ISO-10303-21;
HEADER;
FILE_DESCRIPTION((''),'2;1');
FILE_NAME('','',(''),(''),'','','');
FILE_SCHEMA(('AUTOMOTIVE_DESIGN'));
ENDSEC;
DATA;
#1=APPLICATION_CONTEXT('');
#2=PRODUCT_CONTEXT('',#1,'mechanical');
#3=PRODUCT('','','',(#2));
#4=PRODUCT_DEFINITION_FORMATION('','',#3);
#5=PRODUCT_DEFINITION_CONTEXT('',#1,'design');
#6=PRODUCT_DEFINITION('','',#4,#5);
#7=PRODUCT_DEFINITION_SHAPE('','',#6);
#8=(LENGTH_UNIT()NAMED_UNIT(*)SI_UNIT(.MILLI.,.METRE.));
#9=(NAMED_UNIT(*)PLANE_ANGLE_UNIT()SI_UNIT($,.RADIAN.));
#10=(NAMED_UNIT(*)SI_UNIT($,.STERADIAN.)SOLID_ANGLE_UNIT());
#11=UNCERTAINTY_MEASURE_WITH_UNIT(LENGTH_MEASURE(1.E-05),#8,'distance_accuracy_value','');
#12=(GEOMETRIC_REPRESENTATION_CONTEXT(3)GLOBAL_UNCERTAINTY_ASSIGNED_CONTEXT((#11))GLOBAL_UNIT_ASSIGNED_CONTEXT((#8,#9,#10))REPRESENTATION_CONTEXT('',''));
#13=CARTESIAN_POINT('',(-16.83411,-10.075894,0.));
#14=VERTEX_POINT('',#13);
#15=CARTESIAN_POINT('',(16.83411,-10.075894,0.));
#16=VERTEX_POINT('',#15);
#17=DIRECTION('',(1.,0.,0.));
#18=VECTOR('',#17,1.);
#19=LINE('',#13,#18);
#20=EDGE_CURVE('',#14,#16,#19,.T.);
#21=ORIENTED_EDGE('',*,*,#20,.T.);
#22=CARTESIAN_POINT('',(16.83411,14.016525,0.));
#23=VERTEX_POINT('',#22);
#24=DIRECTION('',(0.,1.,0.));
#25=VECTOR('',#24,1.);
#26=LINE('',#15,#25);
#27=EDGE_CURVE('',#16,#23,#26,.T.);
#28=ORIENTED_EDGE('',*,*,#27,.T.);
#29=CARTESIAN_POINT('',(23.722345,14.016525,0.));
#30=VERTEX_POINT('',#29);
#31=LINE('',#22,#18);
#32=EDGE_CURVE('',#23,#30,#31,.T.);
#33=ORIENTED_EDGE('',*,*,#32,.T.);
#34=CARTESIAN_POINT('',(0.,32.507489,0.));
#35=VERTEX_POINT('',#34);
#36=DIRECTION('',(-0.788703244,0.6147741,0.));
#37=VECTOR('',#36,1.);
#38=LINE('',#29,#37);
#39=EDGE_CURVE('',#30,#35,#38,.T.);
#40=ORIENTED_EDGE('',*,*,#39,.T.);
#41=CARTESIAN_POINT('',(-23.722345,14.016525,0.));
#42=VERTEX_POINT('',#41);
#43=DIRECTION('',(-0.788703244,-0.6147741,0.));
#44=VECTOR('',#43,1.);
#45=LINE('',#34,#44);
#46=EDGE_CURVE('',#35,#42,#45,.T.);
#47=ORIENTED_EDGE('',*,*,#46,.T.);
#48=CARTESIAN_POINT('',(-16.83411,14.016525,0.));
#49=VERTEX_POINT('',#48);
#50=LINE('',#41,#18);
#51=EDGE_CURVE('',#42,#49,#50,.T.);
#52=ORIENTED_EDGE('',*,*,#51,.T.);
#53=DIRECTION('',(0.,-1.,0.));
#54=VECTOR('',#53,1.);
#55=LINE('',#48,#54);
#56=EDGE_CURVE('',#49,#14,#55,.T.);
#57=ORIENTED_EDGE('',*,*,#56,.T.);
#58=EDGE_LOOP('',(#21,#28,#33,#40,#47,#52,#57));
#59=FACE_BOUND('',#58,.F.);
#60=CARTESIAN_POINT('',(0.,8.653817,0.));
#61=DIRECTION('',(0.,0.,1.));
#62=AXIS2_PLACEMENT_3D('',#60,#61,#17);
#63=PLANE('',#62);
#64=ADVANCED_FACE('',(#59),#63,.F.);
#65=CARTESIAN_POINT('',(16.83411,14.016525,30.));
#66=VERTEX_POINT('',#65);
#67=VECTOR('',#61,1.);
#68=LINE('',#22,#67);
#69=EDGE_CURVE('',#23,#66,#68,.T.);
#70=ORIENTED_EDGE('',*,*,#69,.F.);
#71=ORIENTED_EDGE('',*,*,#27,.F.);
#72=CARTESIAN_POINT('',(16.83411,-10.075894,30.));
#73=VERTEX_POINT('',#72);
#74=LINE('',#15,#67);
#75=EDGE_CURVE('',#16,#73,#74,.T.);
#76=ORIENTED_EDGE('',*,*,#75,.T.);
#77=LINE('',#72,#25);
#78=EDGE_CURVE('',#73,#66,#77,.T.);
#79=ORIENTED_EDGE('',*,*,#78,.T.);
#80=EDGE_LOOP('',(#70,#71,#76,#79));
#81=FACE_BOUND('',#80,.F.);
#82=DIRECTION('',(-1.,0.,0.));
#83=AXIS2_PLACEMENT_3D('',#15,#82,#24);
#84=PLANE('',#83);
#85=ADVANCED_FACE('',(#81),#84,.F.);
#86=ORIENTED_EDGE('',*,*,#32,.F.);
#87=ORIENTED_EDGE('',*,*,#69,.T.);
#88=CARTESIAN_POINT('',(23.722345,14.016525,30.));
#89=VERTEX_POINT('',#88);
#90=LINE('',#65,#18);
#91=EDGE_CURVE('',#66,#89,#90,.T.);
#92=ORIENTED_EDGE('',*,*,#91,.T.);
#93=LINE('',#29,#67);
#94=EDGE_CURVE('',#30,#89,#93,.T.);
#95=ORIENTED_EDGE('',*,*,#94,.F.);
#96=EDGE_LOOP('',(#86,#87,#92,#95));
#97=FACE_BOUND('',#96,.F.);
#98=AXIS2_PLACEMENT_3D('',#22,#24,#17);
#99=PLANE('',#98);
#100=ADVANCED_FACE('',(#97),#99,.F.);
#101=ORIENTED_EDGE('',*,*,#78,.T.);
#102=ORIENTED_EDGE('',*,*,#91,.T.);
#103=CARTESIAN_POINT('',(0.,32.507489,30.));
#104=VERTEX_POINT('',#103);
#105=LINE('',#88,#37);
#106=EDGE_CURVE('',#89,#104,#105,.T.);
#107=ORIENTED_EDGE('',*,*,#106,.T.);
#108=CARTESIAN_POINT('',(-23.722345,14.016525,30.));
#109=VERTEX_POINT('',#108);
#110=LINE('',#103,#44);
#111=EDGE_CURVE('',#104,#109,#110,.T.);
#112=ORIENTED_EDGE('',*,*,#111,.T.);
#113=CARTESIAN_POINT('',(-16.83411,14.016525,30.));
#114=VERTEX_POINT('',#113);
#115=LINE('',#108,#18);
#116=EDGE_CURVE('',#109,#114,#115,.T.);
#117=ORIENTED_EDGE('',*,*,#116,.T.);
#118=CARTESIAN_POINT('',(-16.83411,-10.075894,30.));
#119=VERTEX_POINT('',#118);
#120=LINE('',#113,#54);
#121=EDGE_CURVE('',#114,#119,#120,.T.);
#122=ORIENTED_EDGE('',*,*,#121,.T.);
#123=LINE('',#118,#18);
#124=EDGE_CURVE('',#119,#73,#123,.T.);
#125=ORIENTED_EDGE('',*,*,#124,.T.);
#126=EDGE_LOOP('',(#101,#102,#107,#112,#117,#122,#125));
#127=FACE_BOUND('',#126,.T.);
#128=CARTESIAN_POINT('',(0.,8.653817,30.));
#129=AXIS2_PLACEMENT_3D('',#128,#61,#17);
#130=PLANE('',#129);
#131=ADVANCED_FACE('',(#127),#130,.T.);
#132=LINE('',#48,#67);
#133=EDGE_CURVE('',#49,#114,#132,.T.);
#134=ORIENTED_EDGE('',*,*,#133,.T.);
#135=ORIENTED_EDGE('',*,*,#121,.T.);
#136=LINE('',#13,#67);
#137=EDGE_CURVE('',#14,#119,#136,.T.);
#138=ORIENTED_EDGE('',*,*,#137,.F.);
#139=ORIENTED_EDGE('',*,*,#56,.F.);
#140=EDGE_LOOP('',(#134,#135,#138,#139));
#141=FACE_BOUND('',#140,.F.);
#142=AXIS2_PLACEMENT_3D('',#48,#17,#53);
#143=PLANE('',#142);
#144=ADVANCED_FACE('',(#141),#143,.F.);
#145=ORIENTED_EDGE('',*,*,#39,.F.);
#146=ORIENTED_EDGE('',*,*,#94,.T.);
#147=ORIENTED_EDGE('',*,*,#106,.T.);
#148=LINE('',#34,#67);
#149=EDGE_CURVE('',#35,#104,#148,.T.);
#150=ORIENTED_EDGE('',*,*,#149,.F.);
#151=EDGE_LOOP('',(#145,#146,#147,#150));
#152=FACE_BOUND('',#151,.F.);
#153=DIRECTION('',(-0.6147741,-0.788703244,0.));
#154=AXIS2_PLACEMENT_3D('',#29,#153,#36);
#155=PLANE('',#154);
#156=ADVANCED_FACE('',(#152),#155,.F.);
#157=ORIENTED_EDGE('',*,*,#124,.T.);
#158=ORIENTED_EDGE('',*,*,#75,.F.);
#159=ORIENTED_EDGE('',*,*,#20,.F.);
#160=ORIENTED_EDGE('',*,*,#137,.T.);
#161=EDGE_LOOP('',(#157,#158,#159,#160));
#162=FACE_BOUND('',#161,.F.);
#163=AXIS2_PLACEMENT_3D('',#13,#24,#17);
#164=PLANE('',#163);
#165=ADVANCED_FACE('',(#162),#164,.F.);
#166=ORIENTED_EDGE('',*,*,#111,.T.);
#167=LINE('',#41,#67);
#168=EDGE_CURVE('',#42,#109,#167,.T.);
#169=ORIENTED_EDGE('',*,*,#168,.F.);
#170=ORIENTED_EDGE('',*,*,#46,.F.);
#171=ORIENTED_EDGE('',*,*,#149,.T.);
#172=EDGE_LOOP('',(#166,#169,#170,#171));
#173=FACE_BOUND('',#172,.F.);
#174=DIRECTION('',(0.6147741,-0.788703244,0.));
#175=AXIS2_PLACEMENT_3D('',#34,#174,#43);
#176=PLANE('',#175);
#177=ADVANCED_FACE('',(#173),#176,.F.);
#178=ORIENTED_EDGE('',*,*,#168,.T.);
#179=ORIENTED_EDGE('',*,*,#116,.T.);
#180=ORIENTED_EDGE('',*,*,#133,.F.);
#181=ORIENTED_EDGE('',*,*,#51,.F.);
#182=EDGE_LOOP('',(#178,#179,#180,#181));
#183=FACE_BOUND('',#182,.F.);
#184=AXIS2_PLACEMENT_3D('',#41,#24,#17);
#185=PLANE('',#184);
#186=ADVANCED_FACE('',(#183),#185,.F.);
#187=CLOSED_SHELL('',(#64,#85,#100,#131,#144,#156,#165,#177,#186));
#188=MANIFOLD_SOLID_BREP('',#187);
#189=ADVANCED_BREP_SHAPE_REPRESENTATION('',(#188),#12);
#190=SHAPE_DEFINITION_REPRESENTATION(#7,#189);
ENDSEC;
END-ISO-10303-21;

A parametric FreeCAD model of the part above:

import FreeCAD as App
import Part
import Sketcher
from FreeCAD import Vector

doc = App.newDocument("Part")
body = doc.addObject("PartDesign::Body", "Body")

# Sketch on XY plane
sketch1 = body.newObject("Sketcher::SketchObject", "Sketch")
sketch1.AttachmentSupport = (doc.getObject("XY_Plane"), [""])
sketch1.MapMode = "FlatFace"
sketch1.addGeometry(Part.LineSegment(Vector(-17, 14, 0), Vector(-17, -10, 0)), False)
sketch1.addGeometry(Part.LineSegment(Vector(-17, -10, 0), Vector(17, -10, 0)), False)
sketch1.addGeometry(Part.LineSegment(Vector(17, -10, 0), Vector(17, 14, 0)), False)
sketch1.addGeometry(Part.LineSegment(Vector(17, 14, 0), Vector(24, 14, 0)), False)
sketch1.addGeometry(Part.LineSegment(Vector(24, 14, 0), Vector(0, 33, 0)), False)
sketch1.addGeometry(Part.LineSegment(Vector(0, 33, 0), Vector(-24, 14, 0)), False)
sketch1.addGeometry(Part.LineSegment(Vector(-24, 14, 0), Vector(-17, 14, 0)), False)
sketch1.addConstraint(Sketcher.Constraint("Coincident", 0, 2, 1, 1))
sketch1.addConstraint(Sketcher.Constraint("Coincident", 1, 2, 2, 1))
sketch1.addConstraint(Sketcher.Constraint("Coincident", 2, 2, 3, 1))
sketch1.addConstraint(Sketcher.Constraint("Coincident", 3, 2, 4, 1))
sketch1.addConstraint(Sketcher.Constraint("Coincident", 4, 2, 5, 1))
sketch1.addConstraint(Sketcher.Constraint("Coincident", 5, 2, 6, 1))
sketch1.addConstraint(Sketcher.Constraint("Coincident", 6, 2, 0, 1))
sketch1.addConstraint(Sketcher.Constraint("Vertical", 0))
sketch1.addConstraint(Sketcher.Constraint("Horizontal", 1))
sketch1.addConstraint(Sketcher.Constraint("Vertical", 2))
sketch1.addConstraint(Sketcher.Constraint("Horizontal", 3))
sketch1.addConstraint(Sketcher.Constraint("Horizontal", 6))
sketch1.addConstraint(Sketcher.Constraint("Symmetric", 3, 2, 5, 2, -2))
sketch1.addConstraint(Sketcher.Constraint("PointOnObject", 4, 2, -2))
sketch1.addConstraint(Sketcher.Constraint("Equal", 3, 6))
sketch1.addConstraint(Sketcher.Constraint("DistanceX", 1, 1, 1, 2, 33.66822))
sketch1.addConstraint(Sketcher.Constraint("DistanceY", 0, 2, 0, 1, 24.092419))
sketch1.addConstraint(Sketcher.Constraint("DistanceX", 3, 1, 3, 2, 6.888235))
sketch1.addConstraint(Sketcher.Constraint("DistanceY", -1, 1, 4, 2, 32.507489))
sketch1.addConstraint(Sketcher.Constraint("Distance", 4, 30.077656))
pad1 = body.newObject("PartDesign::Pad", "Pad")
pad1.Profile = sketch1
pad1.Length = 30

doc.recompute()
